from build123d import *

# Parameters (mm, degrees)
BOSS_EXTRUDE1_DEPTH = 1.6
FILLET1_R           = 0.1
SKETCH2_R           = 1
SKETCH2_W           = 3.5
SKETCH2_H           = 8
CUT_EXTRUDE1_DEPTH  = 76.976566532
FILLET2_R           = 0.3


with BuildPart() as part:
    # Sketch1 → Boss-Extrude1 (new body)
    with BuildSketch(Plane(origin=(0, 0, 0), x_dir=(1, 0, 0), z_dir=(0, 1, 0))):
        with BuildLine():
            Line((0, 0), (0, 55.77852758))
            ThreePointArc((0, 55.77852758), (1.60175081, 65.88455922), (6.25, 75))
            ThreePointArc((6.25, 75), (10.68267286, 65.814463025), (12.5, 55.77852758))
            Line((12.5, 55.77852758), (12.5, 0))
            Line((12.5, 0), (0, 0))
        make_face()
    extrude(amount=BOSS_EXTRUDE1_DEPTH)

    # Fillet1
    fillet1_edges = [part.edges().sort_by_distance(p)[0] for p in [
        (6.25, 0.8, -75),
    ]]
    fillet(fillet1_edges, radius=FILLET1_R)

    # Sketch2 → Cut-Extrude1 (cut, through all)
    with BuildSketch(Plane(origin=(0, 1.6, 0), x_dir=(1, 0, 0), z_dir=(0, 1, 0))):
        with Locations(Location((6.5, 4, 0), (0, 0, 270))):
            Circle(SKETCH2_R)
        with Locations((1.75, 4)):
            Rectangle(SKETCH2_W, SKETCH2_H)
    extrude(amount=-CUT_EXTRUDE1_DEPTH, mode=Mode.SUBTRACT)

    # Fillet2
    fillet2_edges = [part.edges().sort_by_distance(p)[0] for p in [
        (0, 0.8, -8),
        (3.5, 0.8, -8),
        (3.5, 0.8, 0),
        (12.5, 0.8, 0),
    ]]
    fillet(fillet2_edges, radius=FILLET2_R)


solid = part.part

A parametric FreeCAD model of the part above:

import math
import FreeCAD as App
import Part
import Sketcher

V = App.Vector


def edges_at(feature, points):
    """Names of the edges that pass closest to the given points."""
    edges = feature.Shape.Edges
    near = lambda p: min(range(len(edges)), key=lambda i: edges[i].distToShape(Part.Vertex(*p))[0])
    return sorted({f"Edge{near(p) + 1}" for p in points})

doc = App.newDocument("Part")
body = doc.addObject("PartDesign::Body", "Body")

# Sketch on XZ plane
sketch1 = body.newObject("Sketcher::SketchObject", "Sketch")
sketch1.AttachmentSupport = (doc.getObject("XZ_Plane"), [""])
sketch1.MapMode = "FlatFace"
sketch1.addGeometry([
    Part.LineSegment(V(0, -56, 0), V(0, 0, 0)),  # 0
    Part.LineSegment(V(0, 0, 0), V(12, 0, 0)),  # 1
    Part.LineSegment(V(12, 0, 0), V(12, -56, 0)),  # 2
    Part.ArcOfCircle(Part.Circle(V(-25, -54, 0), V(0, 0, 1), 38), math.radians(-34), math.radians(-3)),  # 3
    Part.ArcOfCircle(Part.Circle(V(33, -56, 0), V(0, 0, 1), 33), math.radians(180), math.radians(216)),  # 4
], False)
sketch1.addConstraint([
    Sketcher.Constraint("Coincident", 0, 2, 1, 1),
    Sketcher.Constraint("Coincident", 1, 2, 2, 1),
    Sketcher.Constraint("Coincident", 2, 2, 3, 2),
    Sketcher.Constraint("Coincident", 3, 1, 4, 2),
    Sketcher.Constraint("Tangent", 4, 1, 0, 1),
    Sketcher.Constraint("Vertical", 0),
    Sketcher.Constraint("Horizontal", 1),
    Sketcher.Constraint("Vertical", 2),
    Sketcher.Constraint("Coincident", 0, 2, -1, 1),
    Sketcher.Constraint("Horizontal", 4, 3, 2, 2),
    Sketcher.Constraint("DistanceX", 1, 1, 1, 2, 12.5),
    Sketcher.Constraint("DistanceY", 3, 1, -1, 1, 75.0),
    Sketcher.Constraint("Radius", 4, 32.6822),
    Sketcher.Constraint("DistanceX", -1, 1, 3, 1, 6.25),
    Sketcher.Constraint("Radius", 3, 37.824651),
])
pad1 = body.newObject("PartDesign::Pad", "Pad")
pad1.Profile = sketch1
pad1.Length = 1.6
pad1.Reversed = True
doc.recompute()

fillet = body.newObject("PartDesign::Fillet", "Fillet")
fillet.Base = (pad1, edges_at(pad1, [(6.25, 0.8, -75)]))
fillet.Radius = 0.1

# Sketch on XZ plane
sketch2 = body.newObject("Sketcher::SketchObject", "Sketch001")
sketch2.AttachmentSupport = (doc.getObject("XZ_Plane"), [""])
sketch2.MapMode = "FlatFace"
sketch2.AttachmentOffset = App.Placement(V(0, 0, -1.6), App.Rotation())
sketch2.addGeometry([
    Part.Circle(V(6.5, -4, 0), V(0, 0, 1), 1),  # 0
    Part.LineSegment(V(0, -8, 0), V(0, 0, 0)),  # 1
    Part.LineSegment(V(0, 0, 0), V(3.5, 0, 0)),  # 2
    Part.LineSegment(V(3.5, 0, 0), V(3.5, -8, 0)),  # 3
    Part.LineSegment(V(3.5, -8, 0), V(0, -8, 0)),  # 4
], False)
sketch2.addConstraint([
    Sketcher.Constraint("Coincident", 1, 2, 2, 1),
    Sketcher.Constraint("Coincident", 2, 2, 3, 1),
    Sketcher.Constraint("Coincident", 3, 2, 4, 1),
    Sketcher.Constraint("Coincident", 4, 2, 1, 1),
    Sketcher.Constraint("Vertical", 1),
    Sketcher.Constraint("Horizontal", 2),
    Sketcher.Constraint("Vertical", 3),
    Sketcher.Constraint("Horizontal", 4),
    Sketcher.Constraint("Coincident", 1, 2, -1, 1),
    Sketcher.Constraint("Diameter", 0, 2.0),
    Sketcher.Constraint("DistanceY", 1, 1, 1, 2, 8.0),
    Sketcher.Constraint("DistanceX", 2, 1, 2, 2, 3.5),
    Sketcher.Constraint("DistanceY", 0, 3, -1, 1, 4.0),
    Sketcher.Constraint("DistanceX", 2, 2, 0, 3, 3.0),
])
pocket1 = body.newObject("PartDesign::Pocket", "Pocket")
pocket1.Profile = sketch2
pocket1.Type = "ThroughAll"
pocket1.Reversed = True
doc.recompute()

fillet2 = body.newObject("PartDesign::Fillet", "Fillet001")
fillet2.Base = (pocket1, edges_at(pocket1, [
    (0, 0.8, -8),
    (3.5, 0.8, -8),
    (3.5, 0.8, 0),
    (12.5, 0.8, 0),
]))
fillet2.Radius = 0.3

doc.recompute()
